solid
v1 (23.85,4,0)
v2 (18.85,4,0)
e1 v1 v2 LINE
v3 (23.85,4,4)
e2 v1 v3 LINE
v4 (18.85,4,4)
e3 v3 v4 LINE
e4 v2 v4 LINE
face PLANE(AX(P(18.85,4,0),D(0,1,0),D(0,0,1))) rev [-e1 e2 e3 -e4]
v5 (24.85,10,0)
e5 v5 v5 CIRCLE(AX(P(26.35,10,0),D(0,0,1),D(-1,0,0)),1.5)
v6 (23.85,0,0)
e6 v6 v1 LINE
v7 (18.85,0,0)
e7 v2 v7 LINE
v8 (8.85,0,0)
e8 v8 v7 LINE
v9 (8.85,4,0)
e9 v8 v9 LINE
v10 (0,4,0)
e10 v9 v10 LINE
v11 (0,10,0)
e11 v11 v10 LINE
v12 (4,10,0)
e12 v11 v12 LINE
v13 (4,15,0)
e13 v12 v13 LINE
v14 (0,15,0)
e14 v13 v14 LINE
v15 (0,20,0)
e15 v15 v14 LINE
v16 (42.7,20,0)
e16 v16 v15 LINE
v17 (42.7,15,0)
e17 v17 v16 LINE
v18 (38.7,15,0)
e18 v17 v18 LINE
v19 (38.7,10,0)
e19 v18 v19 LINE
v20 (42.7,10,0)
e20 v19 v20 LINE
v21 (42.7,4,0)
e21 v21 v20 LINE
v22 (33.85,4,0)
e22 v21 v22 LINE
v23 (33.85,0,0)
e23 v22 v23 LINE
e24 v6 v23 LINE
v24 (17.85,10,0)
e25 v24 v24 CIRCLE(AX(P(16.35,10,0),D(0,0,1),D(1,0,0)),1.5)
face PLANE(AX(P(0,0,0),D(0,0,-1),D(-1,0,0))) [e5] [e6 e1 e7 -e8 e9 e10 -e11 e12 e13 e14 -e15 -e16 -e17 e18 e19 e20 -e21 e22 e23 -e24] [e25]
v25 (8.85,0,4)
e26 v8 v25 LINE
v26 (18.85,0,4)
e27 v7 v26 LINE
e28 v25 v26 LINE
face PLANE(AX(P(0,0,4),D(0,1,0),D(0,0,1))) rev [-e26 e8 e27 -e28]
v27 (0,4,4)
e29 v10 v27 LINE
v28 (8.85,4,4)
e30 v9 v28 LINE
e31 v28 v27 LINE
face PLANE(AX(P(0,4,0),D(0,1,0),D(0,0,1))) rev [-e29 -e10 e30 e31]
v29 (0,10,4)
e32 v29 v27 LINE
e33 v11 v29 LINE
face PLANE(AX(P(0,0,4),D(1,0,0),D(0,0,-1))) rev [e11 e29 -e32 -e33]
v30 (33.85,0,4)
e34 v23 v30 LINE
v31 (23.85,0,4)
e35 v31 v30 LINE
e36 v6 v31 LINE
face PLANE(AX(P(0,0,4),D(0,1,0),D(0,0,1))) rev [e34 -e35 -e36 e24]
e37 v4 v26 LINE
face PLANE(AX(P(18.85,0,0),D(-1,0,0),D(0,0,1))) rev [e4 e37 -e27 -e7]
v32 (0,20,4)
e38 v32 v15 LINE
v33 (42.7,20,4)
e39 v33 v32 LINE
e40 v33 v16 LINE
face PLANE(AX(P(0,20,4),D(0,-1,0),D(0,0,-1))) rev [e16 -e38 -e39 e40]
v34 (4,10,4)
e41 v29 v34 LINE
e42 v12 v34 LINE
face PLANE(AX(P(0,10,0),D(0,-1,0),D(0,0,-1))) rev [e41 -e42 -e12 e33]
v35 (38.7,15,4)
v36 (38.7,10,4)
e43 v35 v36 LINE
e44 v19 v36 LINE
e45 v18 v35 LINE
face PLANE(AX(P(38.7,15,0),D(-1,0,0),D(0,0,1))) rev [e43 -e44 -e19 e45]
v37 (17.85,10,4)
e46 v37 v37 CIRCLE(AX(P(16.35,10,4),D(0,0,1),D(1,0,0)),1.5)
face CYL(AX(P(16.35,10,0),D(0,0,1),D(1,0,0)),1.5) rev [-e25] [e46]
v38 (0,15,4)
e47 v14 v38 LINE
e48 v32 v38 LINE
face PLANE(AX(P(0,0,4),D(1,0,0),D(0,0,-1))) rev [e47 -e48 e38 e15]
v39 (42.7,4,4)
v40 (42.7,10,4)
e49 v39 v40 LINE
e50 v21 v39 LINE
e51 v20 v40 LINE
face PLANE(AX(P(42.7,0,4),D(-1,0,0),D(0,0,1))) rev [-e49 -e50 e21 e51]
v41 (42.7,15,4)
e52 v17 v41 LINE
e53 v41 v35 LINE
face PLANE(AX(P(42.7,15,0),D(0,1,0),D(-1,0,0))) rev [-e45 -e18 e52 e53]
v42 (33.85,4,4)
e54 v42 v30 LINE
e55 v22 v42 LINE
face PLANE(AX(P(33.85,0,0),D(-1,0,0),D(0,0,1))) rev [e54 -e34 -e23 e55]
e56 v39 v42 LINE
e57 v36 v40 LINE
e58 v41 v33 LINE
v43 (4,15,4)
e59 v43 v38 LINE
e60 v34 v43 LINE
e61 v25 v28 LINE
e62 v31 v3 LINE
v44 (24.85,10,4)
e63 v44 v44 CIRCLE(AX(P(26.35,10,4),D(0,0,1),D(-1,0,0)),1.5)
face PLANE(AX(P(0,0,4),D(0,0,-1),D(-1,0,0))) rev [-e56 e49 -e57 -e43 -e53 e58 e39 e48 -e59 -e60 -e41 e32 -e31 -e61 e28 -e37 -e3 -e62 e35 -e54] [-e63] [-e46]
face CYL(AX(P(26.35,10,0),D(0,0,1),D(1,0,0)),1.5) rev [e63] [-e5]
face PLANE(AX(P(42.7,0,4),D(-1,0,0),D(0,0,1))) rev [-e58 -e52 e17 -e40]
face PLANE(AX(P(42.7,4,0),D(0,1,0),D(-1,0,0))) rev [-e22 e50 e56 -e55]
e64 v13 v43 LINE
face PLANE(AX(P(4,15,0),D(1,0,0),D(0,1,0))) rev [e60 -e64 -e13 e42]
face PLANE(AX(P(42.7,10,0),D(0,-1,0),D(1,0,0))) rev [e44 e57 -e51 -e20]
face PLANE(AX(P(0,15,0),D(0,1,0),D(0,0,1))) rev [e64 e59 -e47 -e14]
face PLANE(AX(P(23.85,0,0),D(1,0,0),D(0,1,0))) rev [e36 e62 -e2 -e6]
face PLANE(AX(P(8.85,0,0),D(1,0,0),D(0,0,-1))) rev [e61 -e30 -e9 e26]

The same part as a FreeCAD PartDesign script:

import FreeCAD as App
import Part
import Sketcher
from FreeCAD import Vector
Q = App.Units.Quantity


def add_polygon(sketch, points):
    """Adds a closed chain of lines whose ends are joined by coincident constraints."""
    first, n = sketch.GeometryCount, len(points)
    for a, b in zip(points, points[1:] + points[:1]):
        sketch.addGeometry(Part.LineSegment(App.Vector(*a, 0), App.Vector(*b, 0)), False)
    for i in range(n):
        sketch.addConstraint(Sketcher.Constraint("Coincident", first + i, 2, first + (i + 1) % n, 1))

doc = App.newDocument("Part")
body = doc.addObject("PartDesign::Body", "Body")

# Sketch on XY plane
sketch1 = doc.addObject("Sketcher::SketchObject", "Sketch")
body.addObject(sketch1)
sketch1.AttachmentSupport = (doc.XY_Plane, [""])
sketch1.MapMode = "FlatFace"
add_polygon(sketch1, [(0, 20), (0, 0), (43, 0), (43, 20)])  # lines 0-3
sketch1.addConstraint([
    Sketcher.Constraint("Vertical", 0),
    Sketcher.Constraint("Horizontal", 1),
    Sketcher.Constraint("Vertical", 2),
    Sketcher.Constraint("Horizontal", 3),
    Sketcher.Constraint("Coincident", 0, 2, -1, 1),
    Sketcher.Constraint("DistanceY", 0, 2, 0, 1, Q("20 mm")),
    Sketcher.Constraint("DistanceX", 1, 1, 1, 2, Q("42.7 mm")),
])
pad1 = doc.addObject("PartDesign::Pad", "Pad")
body.addObject(pad1)
pad1.Profile = sketch1
pad1.Length = 4

# Sketch on XY plane
sketch2 = doc.addObject("Sketcher::SketchObject", "Sketch001")
body.addObject(sketch2)
sketch2.AttachmentSupport = (doc.XY_Plane, [""])
sketch2.MapMode = "FlatFace"
sketch2.AttachmentOffset = App.Placement(Vector(0, 0, 4), App.Rotation())
sketch2.addGeometry(Part.Circle(Vector(16.4, 10, 0), Vector(0, 0, 1), 1.5), False)  # 0
sketch2.addGeometry(Part.Circle(Vector(26.4, 10, 0), Vector(0, 0, 1), 1.5), False)  # 1
add_polygon(sketch2, [(0, 4), (0, 0), (8.8, 0), (8.8, 4)])  # lines 2-5
add_polygon(sketch2, [(18.9, 4), (18.9, 0), (23.9, 0), (23.9, 4)])  # lines 6-9
add_polygon(sketch2, [(33.9, 4), (33.9, 0), (42.7, 0), (42.7, 4)])  # lines 10-13
add_polygon(sketch2, [(0, 15), (0, 10), (4, 10), (4, 15)])  # lines 14-17
add_polygon(sketch2, [(38.7, 15), (38.7, 10), (42.7, 10), (42.7, 15)])  # lines 18-21
sketch2.addConstraint([
    Sketcher.Constraint("Vertical", 2),
    Sketcher.Constraint("Horizontal", 3),
    Sketcher.Constraint("Vertical", 4),
    Sketcher.Constraint("Horizontal", 5),
    Sketcher.Constraint("Vertical", 6),
    Sketcher.Constraint("Horizontal", 7),
    Sketcher.Constraint("Vertical", 8),
    Sketcher.Constraint("Horizontal", 9),
    Sketcher.Constraint("Vertical", 10),
    Sketcher.Constraint("Horizontal", 11),
    Sketcher.Constraint("Vertical", 12),
    Sketcher.Constraint("Horizontal", 13),
    Sketcher.Constraint("Vertical", 14),
    Sketcher.Constraint("Horizontal", 15),
    Sketcher.Constraint("Vertical", 16),
    Sketcher.Constraint("Horizontal", 17),
    Sketcher.Constraint("Vertical", 18),
    Sketcher.Constraint("Horizontal", 19),
    Sketcher.Constraint("Vertical", 20),
    Sketcher.Constraint("Horizontal", 21),
    Sketcher.Constraint("Coincident", 2, 2, -1, 1),
    Sketcher.Constraint("Equal", 0, 1),
    Sketcher.Constraint("PointOnObject", 6, 2, -1),
    Sketcher.Constraint("PointOnObject", 10, 2, -1),
    Sketcher.Constraint("PointOnObject", 14, 2, -2),
    Sketcher.Constraint("Horizontal", 0, 3, 1, 3),
    Sketcher.Constraint("Horizontal", 5, 2, 8, 2),
    Sketcher.Constraint("Horizontal", 9, 2, 12, 2),
    Sketcher.Constraint("Horizontal", 1, 3, 14, 2),
    Sketcher.Constraint("Horizontal", 15, 2, 18, 2),
    Sketcher.Constraint("Horizontal", 17, 2, 20, 2),
    Sketcher.Constraint("Vertical", 12, 2, 19, 2),
    Sketcher.Constraint("Equal", 5, 11),
    Sketcher.Constraint("Equal", 17, 19),
    Sketcher.Constraint("Equal", 21, 2),
    Sketcher.Constraint("Equal", 9, 14),
    Sketcher.Constraint("Diameter", 0, Q("3 mm")),
    Sketcher.Constraint("DistanceX", 7, 1, 7, 2, Q("5 mm")),
    Sketcher.Constraint("DistanceX", 15, 1, 15, 2, Q("4 mm")),
    Sketcher.Constraint("DistanceY", -1, 1, 0, 3, Q("10 mm")),
    Sketcher.Constraint("DistanceX", 0, 3, 1, 3, Q("10 mm")),
    Sketcher.Constraint("DistanceX", 3, 2, 6, 2, Q("10 mm")),
    Sketcher.Constraint("DistanceX", 7, 2, 10, 2, Q("10 mm")),
    Sketcher.Constraint("DistanceX", 3, 1, 3, 2, Q("8.85 mm")),
    Sketcher.Constraint("DistanceX", 3, 2, 0, 3, Q("7.5 mm")),
])
pocket1 = doc.addObject("PartDesign::Pocket", "Pocket")
body.addObject(pocket1)
pocket1.Profile = sketch2
pocket1.Length = 4

doc.recompute()
